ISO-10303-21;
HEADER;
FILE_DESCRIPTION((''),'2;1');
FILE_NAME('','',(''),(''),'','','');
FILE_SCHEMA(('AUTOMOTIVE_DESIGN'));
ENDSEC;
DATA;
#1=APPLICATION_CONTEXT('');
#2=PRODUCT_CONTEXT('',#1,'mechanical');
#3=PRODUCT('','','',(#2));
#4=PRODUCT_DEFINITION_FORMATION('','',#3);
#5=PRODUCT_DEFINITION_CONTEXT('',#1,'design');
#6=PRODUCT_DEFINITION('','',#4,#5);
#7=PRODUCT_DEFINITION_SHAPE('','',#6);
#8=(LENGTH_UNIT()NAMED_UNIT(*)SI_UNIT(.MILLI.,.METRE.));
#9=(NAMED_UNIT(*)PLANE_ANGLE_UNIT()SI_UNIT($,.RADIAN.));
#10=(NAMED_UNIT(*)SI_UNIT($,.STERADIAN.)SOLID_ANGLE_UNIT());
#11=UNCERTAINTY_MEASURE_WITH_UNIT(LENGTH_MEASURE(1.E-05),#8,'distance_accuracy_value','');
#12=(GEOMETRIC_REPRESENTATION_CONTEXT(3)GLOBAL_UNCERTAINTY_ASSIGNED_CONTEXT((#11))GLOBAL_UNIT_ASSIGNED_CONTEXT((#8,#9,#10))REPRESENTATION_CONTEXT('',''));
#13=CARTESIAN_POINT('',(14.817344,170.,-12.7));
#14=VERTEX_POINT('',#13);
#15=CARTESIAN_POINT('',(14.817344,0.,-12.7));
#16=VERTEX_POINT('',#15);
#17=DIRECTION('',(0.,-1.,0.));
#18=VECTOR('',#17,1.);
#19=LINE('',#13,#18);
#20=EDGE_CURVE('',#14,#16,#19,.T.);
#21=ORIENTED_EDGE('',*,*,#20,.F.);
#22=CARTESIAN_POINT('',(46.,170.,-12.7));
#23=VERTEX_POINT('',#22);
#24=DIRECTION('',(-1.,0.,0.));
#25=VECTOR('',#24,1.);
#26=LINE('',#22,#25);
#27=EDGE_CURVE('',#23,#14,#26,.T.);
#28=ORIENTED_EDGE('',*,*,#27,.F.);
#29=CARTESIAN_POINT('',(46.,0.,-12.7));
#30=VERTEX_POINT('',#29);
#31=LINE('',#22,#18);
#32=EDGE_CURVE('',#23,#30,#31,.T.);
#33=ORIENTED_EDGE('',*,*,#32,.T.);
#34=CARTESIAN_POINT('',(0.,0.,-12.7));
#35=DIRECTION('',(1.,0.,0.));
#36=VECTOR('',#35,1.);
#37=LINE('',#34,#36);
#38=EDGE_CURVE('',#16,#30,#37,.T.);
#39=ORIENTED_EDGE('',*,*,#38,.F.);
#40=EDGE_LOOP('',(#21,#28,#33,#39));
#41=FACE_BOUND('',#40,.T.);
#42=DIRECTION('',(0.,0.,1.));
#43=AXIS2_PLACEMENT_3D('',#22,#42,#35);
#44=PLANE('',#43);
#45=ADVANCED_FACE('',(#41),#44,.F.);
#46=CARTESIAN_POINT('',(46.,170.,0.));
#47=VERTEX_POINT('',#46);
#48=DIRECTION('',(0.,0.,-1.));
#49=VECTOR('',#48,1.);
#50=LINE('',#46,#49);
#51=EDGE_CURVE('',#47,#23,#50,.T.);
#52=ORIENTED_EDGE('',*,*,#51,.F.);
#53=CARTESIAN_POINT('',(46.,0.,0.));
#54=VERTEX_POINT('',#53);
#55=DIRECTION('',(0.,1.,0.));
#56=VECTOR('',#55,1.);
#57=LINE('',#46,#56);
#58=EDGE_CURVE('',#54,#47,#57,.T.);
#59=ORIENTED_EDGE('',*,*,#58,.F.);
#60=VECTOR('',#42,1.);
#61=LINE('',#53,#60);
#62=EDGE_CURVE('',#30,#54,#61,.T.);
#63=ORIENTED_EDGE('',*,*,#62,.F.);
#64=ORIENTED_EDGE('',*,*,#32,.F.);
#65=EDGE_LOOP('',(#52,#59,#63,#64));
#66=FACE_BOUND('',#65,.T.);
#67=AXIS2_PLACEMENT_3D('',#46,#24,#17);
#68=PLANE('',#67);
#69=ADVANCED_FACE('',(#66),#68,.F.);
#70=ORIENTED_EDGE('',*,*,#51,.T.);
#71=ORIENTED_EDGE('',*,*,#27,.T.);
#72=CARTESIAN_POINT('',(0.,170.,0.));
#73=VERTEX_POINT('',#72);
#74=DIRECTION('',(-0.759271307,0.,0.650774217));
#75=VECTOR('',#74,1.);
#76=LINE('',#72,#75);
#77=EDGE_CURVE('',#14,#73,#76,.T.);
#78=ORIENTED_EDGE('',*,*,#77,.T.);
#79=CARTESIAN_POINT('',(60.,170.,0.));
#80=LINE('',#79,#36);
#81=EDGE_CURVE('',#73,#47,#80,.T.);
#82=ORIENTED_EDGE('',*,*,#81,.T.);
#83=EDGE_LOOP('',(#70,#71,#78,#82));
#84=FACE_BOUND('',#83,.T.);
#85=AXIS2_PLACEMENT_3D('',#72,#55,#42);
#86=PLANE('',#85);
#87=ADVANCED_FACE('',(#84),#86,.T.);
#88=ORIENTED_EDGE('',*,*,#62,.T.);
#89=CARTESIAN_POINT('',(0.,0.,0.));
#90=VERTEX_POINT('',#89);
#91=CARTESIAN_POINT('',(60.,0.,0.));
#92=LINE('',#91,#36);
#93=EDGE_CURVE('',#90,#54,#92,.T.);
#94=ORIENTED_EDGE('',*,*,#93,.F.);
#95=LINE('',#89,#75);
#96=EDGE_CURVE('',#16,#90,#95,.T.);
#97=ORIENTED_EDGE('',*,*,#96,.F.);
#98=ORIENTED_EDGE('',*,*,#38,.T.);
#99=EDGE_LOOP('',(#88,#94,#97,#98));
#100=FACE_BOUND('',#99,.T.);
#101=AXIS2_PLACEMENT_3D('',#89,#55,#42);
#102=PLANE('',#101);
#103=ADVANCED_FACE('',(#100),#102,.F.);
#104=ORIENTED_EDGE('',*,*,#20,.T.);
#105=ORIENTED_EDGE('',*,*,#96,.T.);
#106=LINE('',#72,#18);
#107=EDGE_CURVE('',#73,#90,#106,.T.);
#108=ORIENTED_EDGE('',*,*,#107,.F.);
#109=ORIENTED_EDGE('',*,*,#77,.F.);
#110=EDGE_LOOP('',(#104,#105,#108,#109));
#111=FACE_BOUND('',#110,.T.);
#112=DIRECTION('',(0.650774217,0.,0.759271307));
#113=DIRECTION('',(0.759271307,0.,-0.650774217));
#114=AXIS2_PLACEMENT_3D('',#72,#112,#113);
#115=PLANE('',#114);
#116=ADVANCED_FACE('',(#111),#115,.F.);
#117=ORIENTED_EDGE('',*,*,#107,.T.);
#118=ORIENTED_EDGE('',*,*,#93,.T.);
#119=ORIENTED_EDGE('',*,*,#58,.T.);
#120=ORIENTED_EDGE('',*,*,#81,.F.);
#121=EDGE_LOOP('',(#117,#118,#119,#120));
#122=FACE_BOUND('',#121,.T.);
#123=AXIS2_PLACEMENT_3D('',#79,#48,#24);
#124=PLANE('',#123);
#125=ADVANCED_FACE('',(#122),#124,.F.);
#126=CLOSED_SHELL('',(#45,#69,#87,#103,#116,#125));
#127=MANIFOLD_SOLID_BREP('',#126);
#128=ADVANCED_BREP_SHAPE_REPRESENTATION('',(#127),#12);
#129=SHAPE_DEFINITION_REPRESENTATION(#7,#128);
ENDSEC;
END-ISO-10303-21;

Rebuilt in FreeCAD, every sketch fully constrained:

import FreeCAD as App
import Part
import Sketcher
from FreeCAD import Vector
Q = App.Units.Quantity

doc = App.newDocument("Part")
body = doc.addObject("PartDesign::Body", "Body")

sketch1 = body.newObject("Sketcher::SketchObject", "Sketch")
sketch1.AttachmentSupport = (doc.getObject("XZ_Plane"), [""])
sketch1.MapMode = "FlatFace"
sketch1.addGeometry([
    Part.LineSegment(Vector(18, -15, 0), Vector(0, 0, 0)),
    Part.LineSegment(Vector(0, 0, 0), Vector(60, 0, 0)),
    Part.LineSegment(Vector(60, 0, 0), Vector(60, -15, 0)),
    Part.LineSegment(Vector(60, -15, 0), Vector(18, -15, 0)),
], False)
sketch1.addConstraint([
    Sketcher.Constraint("Coincident", 0, 2, 1, 1),
    Sketcher.Constraint("Coincident", 1, 2, 2, 1),
    Sketcher.Constraint("Coincident", 2, 2, 3, 1),
    Sketcher.Constraint("Coincident", 3, 2, 0, 1),
    Sketcher.Constraint("Horizontal", 1),
    Sketcher.Constraint("Vertical", 2),
    Sketcher.Constraint("Horizontal", 3),
    Sketcher.Constraint("Coincident", 0, 2, -1, 1),
    Sketcher.Constraint("DistanceX", 1, 1, 1, 2, Q("60 mm")),
    Sketcher.Constraint("DistanceY", 2, 2, 2, 1, Q("15 mm")),
    Sketcher.Constraint("Angle", 0, Q("139.4 deg")),
])
pad1 = body.newObject("PartDesign::Pad", "Pad")
pad1.Profile = sketch1
pad1.Length = 170
pad1.Reversed = True

sketch2 = body.newObject("Sketcher::SketchObject", "Sketch001")
sketch2.AttachmentSupport = (doc.getObject("XY_Plane"), [""])
sketch2.MapMode = "FlatFace"
sketch2.AttachmentOffset = App.Placement(Vector(0, 0, -15), App.Rotation())
sketch2.addGeometry([
    Part.LineSegment(Vector(60, 27, 0), Vector(60, 0, 0)),
    Part.LineSegment(Vector(60, 0, 0), Vector(52, 0, 0)),
    Part.LineSegment(Vector(52, 0, 0), Vector(52, 27, 0)),
    Part.LineSegment(Vector(52, 27, 0), Vector(60, 27, 0)),
    Part.LineSegment(Vector(60, 170, 0), Vector(60, 143, 0)),
    Part.LineSegment(Vector(60, 143, 0), Vector(52, 143, 0)),
    Part.LineSegment(Vector(52, 143, 0), Vector(52, 170, 0)),
    Part.LineSegment(Vector(52, 170, 0), Vector(60, 170, 0)),
], False)
sketch2.addConstraint([
    Sketcher.Constraint("Coincident", 0, 2, 1, 1),
    Sketcher.Constraint("Coincident", 1, 2, 2, 1),
    Sketcher.Constraint("Coincident", 2, 2, 3, 1),
    Sketcher.Constraint("Coincident", 3, 2, 0, 1),
    Sketcher.Constraint("Coincident", 4, 2, 5, 1),
    Sketcher.Constraint("Coincident", 5, 2, 6, 1),
    Sketcher.Constraint("Coincident", 6, 2, 7, 1),
    Sketcher.Constraint("Coincident", 7, 2, 4, 1),
    Sketcher.Constraint("Vertical", 0),
    Sketcher.Constraint("Horizontal", 1),
    Sketcher.Constraint("Vertical", 2),
    Sketcher.Constraint("Horizontal", 3),
    Sketcher.Constraint("Vertical", 4),
    Sketcher.Constraint("Horizontal", 5),
    Sketcher.Constraint("Vertical", 6),
    Sketcher.Constraint("Horizontal", 7),
    Sketcher.Constraint("PointOnObject", 0, 2, -1),
    Sketcher.Constraint("Vertical", 3, 2, 4, 2),
    Sketcher.Constraint("Vertical", 2, 2, 5, 2),
    Sketcher.Constraint("Equal", 2, 4),
    Sketcher.Constraint("DistanceX", 1, 2, 1, 1, Q("8 mm")),
    Sketcher.Constraint("DistanceY", 0, 2, 0, 1, Q("27 mm")),
    Sketcher.Constraint("DistanceX", -1, 1, 0, 2, Q("60 mm")),
    Sketcher.Constraint("DistanceY", -1, 1, 4, 2, Q("143 mm")),
])
pocket1 = body.newObject("PartDesign::Pocket", "Pocket")
pocket1.Profile = sketch2
pocket1.Type = "ThroughAll"
pocket1.Midplane = True

sketch3 = body.newObject("Sketcher::SketchObject", "Sketch002")
sketch3.AttachmentSupport = (doc.getObject("XY_Plane"), [""])
sketch3.MapMode = "FlatFace"
sketch3.AttachmentOffset = App.Placement(Vector(0, 0, -15), App.Rotation())
sketch3.addGeometry([
    Part.LineSegment(Vector(84, 170, 0), Vector(84, -6, 0)),
    Part.LineSegment(Vector(84, -6, 0), Vector(46, -6, 0)),
    Part.LineSegment(Vector(46, -6, 0), Vector(46, 170, 0)),
    Part.LineSegment(Vector(46, 170, 0), Vector(84, 170, 0)),
], False)
sketch3.addConstraint([
    Sketcher.Constraint("Coincident", 0, 2, 1, 1),
    Sketcher.Constraint("Coincident", 1, 2, 2, 1),
    Sketcher.Constraint("Coincident", 2, 2, 3, 1),
    Sketcher.Constraint("Coincident", 3, 2, 0, 1),
    Sketcher.Constraint("Vertical", 0),
    Sketcher.Constraint("Horizontal", 1),
    Sketcher.Constraint("Vertical", 2),
    Sketcher.Constraint("Horizontal", 3),
    Sketcher.Constraint("DistanceX", -1, 1, 1, 2, Q("46 mm")),
    Sketcher.Constraint("DistanceY", -1, 1, 2, 2, Q("170 mm")),
    Sketcher.Constraint("DistanceX", 1, 2, 1, 1, Q("38.065119 mm")),
    Sketcher.Constraint("DistanceY", 0, 2, 0, 1, Q("175.826127 mm")),
])
pocket2 = body.newObject("PartDesign::Pocket", "Pocket001")
pocket2.Profile = sketch3
pocket2.Type = "ThroughAll"
pocket2.Midplane = True

sketch4 = body.newObject("Sketcher::SketchObject", "Sketch003")
sketch4.AttachmentSupport = (doc.getObject("XZ_Plane"), [""])
sketch4.MapMode = "FlatFace"
sketch4.addGeometry([
    Part.LineSegment(Vector(10, -13, 0), Vector(10, -20, 0)),
    Part.LineSegment(Vector(10, -20, 0), Vector(46, -20, 0)),
    Part.LineSegment(Vector(46, -20, 0), Vector(46, -13, 0)),
    Part.LineSegment(Vector(46, -13, 0), Vector(10, -13, 0)),
], False)
sketch4.addConstraint([
    Sketcher.Constraint("Coincident", 0, 2, 1, 1),
    Sketcher.Constraint("Coincident", 1, 2, 2, 1),
    Sketcher.Constraint("Coincident", 2, 2, 3, 1),
    Sketcher.Constraint("Coincident", 3, 2, 0, 1),
    Sketcher.Constraint("Vertical", 0),
    Sketcher.Constraint("Horizontal", 1),
    Sketcher.Constraint("Vertical", 2),
    Sketcher.Constraint("Horizontal", 3),
    Sketcher.Constraint("DistanceX", -1, 1, 1, 2, Q("46 mm")),
    Sketcher.Constraint("DistanceY", 2, 2, -1, 1, Q("12.7 mm")),
    Sketcher.Constraint("DistanceX", 1, 1, 1, 2, Q("35.532252 mm")),
    Sketcher.Constraint("DistanceY", 0, 2, 0, 1, Q("7.536767 mm")),
])
pocket3 = body.newObject("PartDesign::Pocket", "Pocket002")
pocket3.Profile = sketch4
pocket3.Type = "ThroughAll"
pocket3.Midplane = True

doc.recompute()
